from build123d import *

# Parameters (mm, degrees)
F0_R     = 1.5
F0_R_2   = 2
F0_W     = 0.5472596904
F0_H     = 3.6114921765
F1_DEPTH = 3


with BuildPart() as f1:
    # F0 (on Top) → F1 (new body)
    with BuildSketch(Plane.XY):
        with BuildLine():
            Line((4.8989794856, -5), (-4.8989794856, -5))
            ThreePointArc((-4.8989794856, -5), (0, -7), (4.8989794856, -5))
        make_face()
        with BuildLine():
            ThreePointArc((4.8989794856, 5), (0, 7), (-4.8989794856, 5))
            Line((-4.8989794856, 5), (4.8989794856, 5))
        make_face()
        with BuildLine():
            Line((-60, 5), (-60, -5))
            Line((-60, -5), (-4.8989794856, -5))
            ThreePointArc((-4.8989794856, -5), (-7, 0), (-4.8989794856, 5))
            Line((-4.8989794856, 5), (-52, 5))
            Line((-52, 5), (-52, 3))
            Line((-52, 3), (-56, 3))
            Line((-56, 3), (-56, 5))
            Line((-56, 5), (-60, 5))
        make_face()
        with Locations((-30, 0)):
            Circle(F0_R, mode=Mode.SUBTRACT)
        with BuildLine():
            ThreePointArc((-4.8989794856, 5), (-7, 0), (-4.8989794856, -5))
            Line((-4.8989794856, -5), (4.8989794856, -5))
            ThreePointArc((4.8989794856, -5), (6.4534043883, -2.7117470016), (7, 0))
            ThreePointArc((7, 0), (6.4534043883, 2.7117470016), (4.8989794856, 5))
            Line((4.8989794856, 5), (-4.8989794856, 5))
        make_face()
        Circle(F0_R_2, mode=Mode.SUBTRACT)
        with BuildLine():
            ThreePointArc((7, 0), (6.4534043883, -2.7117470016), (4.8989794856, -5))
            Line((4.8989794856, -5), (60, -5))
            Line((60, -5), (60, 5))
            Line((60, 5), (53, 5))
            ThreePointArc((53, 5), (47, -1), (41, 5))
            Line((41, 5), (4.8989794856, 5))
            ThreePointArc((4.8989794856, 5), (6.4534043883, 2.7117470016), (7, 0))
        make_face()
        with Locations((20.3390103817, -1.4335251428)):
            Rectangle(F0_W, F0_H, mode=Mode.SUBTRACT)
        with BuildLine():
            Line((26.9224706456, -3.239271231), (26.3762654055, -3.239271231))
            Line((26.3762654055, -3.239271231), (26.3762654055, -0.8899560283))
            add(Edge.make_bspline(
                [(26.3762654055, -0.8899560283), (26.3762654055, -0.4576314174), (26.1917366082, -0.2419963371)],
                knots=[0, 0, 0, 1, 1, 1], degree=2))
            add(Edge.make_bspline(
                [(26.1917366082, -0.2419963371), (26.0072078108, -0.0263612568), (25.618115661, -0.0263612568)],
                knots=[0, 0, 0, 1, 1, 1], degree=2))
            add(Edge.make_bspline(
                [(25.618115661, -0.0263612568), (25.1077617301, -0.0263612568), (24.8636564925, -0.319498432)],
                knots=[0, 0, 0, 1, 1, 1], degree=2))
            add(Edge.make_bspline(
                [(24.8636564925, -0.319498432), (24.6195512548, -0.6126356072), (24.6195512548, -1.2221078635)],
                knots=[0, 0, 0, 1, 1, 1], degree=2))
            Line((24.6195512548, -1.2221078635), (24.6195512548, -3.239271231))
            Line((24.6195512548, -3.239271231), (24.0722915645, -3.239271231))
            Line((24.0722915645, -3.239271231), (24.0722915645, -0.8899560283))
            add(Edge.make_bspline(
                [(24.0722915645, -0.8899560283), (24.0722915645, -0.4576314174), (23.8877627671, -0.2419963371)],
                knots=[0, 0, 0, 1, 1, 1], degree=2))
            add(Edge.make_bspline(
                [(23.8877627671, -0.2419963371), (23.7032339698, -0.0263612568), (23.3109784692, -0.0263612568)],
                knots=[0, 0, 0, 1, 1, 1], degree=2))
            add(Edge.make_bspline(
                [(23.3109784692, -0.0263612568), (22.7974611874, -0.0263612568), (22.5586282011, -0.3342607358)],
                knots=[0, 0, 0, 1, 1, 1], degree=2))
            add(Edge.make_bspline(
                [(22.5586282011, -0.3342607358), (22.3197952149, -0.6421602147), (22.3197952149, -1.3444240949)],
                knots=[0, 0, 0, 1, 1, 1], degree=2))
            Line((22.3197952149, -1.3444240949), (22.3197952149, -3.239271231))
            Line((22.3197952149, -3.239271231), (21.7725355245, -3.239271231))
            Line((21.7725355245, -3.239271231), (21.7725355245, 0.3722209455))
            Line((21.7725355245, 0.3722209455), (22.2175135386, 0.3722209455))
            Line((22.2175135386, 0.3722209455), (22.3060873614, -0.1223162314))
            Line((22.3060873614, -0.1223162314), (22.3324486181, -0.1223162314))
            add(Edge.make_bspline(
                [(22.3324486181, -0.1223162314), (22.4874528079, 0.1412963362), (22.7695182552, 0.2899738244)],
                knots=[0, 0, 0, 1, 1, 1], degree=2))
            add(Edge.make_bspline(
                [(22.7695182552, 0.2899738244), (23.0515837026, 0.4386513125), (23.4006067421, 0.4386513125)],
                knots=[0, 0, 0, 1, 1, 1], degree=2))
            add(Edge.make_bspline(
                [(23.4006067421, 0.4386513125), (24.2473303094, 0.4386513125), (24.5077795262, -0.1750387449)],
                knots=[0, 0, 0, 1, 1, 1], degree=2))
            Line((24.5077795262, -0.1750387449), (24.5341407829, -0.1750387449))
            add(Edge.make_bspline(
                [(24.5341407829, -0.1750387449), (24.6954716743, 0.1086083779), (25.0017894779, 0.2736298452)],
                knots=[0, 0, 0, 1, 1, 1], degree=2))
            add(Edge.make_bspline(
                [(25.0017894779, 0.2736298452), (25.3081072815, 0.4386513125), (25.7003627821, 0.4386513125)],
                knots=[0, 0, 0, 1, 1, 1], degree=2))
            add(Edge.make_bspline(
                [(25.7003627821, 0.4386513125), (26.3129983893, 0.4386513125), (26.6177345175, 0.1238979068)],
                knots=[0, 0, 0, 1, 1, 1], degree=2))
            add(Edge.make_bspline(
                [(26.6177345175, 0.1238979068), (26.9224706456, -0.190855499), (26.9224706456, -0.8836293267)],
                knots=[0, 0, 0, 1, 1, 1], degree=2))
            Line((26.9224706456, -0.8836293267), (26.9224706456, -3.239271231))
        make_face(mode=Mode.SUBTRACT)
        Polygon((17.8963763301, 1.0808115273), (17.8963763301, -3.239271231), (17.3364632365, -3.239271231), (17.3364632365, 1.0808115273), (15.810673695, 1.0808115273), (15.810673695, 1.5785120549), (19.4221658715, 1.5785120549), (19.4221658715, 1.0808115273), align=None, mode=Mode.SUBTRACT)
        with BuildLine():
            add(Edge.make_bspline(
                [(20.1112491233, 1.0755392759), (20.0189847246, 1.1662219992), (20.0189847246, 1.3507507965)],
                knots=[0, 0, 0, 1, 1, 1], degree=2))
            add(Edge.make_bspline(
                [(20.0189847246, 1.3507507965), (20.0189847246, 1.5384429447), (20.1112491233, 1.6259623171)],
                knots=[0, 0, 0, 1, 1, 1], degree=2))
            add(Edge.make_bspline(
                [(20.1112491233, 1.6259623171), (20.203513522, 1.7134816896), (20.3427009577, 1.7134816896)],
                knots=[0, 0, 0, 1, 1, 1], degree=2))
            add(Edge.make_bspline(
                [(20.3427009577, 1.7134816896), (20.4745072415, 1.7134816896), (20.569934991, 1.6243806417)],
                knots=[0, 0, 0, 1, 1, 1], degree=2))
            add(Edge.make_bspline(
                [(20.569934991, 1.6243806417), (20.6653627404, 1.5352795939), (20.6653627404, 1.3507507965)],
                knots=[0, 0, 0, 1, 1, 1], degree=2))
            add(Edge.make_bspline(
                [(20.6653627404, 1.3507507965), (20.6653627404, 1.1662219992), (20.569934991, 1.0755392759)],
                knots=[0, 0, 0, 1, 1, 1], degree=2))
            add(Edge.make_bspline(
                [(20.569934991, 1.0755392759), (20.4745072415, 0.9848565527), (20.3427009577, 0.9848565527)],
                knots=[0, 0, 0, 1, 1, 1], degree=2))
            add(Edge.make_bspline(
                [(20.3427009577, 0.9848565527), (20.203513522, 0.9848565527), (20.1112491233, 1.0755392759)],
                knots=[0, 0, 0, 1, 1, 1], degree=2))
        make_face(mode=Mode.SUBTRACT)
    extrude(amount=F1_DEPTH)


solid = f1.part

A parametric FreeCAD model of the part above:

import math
import FreeCAD as App
import Part
import Sketcher
from FreeCAD import Vector

doc = App.newDocument("Part")
params = doc.addObject("Spreadsheet::Sheet", "Params")
for row, (alias, value) in enumerate([
    ("sketch1_diameter", "3 mm"),
    ("sketch1_diameter2", "4 mm"),
    ("sketch1_radius", "7 mm"),
    ("sketch1_radius2", "6 mm"),
    ("sketch1_radius3", "7 mm"),
    ("pad1_length", "3 mm"),
], start=1):
    params.set(f"A{row}", alias)
    params.set(f"B{row}", "=" + value)
    params.setAlias(f"B{row}", alias)

body = doc.addObject("PartDesign::Body", "Body")

# Sketch on XY plane
sketch1 = body.newObject("Sketcher::SketchObject", "Sketch")
sketch1.AttachmentSupport = (doc.getObject("XY_Plane"), [""])
sketch1.MapMode = "FlatFace"
sketch1.addGeometry([
    Part.ArcOfCircle(Part.Circle(Vector(0, 0, 0), Vector(0, 0, 1), 7), math.radians(-134.415309), math.radians(-45.584691)),  # 0
    Part.LineSegment(Vector(4.898979, -5, 0), Vector(60, -5, 0)),  # 1
    Part.LineSegment(Vector(60, -5, 0), Vector(60, 5, 0)),  # 2
    Part.LineSegment(Vector(60, 5, 0), Vector(53, 5, 0)),  # 3
    Part.ArcOfCircle(Part.Circle(Vector(47, 5, 0), Vector(0, 0, 1), 6), math.radians(180), math.radians(360)),  # 4
    Part.LineSegment(Vector(41, 5, 0), Vector(4.898979, 5, 0)),  # 5
    Part.ArcOfCircle(Part.Circle(Vector(0, 0, 0), Vector(0, 0, 1), 7), math.radians(45.584691), math.radians(134.415309)),  # 6
    Part.LineSegment(Vector(-4.898979, 5, 0), Vector(-52, 5, 0)),  # 7
    Part.LineSegment(Vector(-52, 5, 0), Vector(-52, 3, 0)),  # 8
    Part.LineSegment(Vector(-52, 3, 0), Vector(-56, 3, 0)),  # 9
    Part.LineSegment(Vector(-56, 3, 0), Vector(-56, 5, 0)),  # 10
    Part.LineSegment(Vector(-56, 5, 0), Vector(-60, 5, 0)),  # 11
    Part.LineSegment(Vector(-60, 5, 0), Vector(-60, -5, 0)),  # 12
    Part.LineSegment(Vector(-60, -5, 0), Vector(-4.898979, -5, 0)),  # 13
    Part.LineSegment(Vector(20.61264, -3.239271, 0), Vector(20.065381, -3.239271, 0)),  # 14
    Part.LineSegment(Vector(20.065381, -3.239271, 0), Vector(20.065381, 0.372221, 0)),  # 15
    Part.LineSegment(Vector(20.065381, 0.372221, 0), Vector(20.61264, 0.372221, 0)),  # 16
    Part.LineSegment(Vector(20.61264, 0.372221, 0), Vector(20.61264, -3.239271, 0)),  # 17
    Part.LineSegment(Vector(26.922471, -0.883629, 0), Vector(26.922471, -3.239271, 0)),  # 18
    Part.LineSegment(Vector(26.922471, -3.239271, 0), Vector(26.376265, -3.239271, 0)),  # 19
    Part.LineSegment(Vector(26.376265, -3.239271, 0), Vector(26.376265, -0.889956, 0)),  # 20
    Part.BSplineCurve([Vector(26.376265, -0.889956, 0), Vector(26.376265, -0.457631, 0), Vector(26.191737, -0.241996, 0)], [3, 3], [0, 1], False, 2, [1, 1, 1], False),  # 21
    Part.BSplineCurve([Vector(26.191737, -0.241996, 0), Vector(26.007208, -0.026361, 0), Vector(25.107762, -0.026361, 0), Vector(24.863656, -0.319498, 0)], [3, 1, 3], [0, 1, 2.311653117], False, 2, [1, 1, 1, 1], False),  # 22
    Part.BSplineCurve([Vector(24.863656, -0.319498, 0), Vector(24.619551, -0.612636, 0), Vector(24.619551, -1.222108, 0)], [3, 3], [0, 1], False, 2, [1, 1, 1], False),  # 23
    Part.LineSegment(Vector(24.619551, -1.222108, 0), Vector(24.619551, -3.239271, 0)),  # 24
    Part.LineSegment(Vector(24.619551, -3.239271, 0), Vector(24.072292, -3.239271, 0)),  # 25
    Part.LineSegment(Vector(24.072292, -3.239271, 0), Vector(24.072292, -0.889956, 0)),  # 26
    Part.BSplineCurve([Vector(24.072292, -0.889956, 0), Vector(24.072292, -0.457631, 0), Vector(23.887763, -0.241996, 0)], [3, 3], [0, 1], False, 2, [1, 1, 1], False),  # 27
    Part.BSplineCurve([Vector(23.887763, -0.241996, 0), Vector(23.703234, -0.026361, 0), Vector(22.797461, -0.026361, 0), Vector(22.558628, -0.334261, 0)], [3, 1, 3], [0, 1, 2.309139785], False, 2, [1, 1, 1, 1], False),  # 28
    Part.BSplineCurve([Vector(22.558628, -0.334261, 0), Vector(22.319795, -0.64216, 0), Vector(22.319795, -1.344424, 0)], [3, 3], [0, 1], False, 2, [1, 1, 1], False),  # 29
    Part.LineSegment(Vector(22.319795, -1.344424, 0), Vector(22.319795, -3.239271, 0)),  # 30
    Part.LineSegment(Vector(22.319795, -3.239271, 0), Vector(21.772536, -3.239271, 0)),  # 31
    Part.LineSegment(Vector(21.772536, -3.239271, 0), Vector(21.772536, 0.372221, 0)),  # 32
    Part.LineSegment(Vector(21.772536, 0.372221, 0), Vector(22.217514, 0.372221, 0)),  # 33
    Part.LineSegment(Vector(22.217514, 0.372221, 0), Vector(22.306087, -0.122316, 0)),  # 34
    Part.LineSegment(Vector(22.306087, -0.122316, 0), Vector(22.332449, -0.122316, 0)),  # 35
    Part.BSplineCurve([Vector(22.332449, -0.122316, 0), Vector(22.487453, 0.141296, 0), Vector(22.769518, 0.289974, 0)], [3, 3], [0, 1], False, 2, [1, 1, 1], False),  # 36
    Part.BSplineCurve([Vector(22.769518, 0.289974, 0), Vector(23.051584, 0.438651, 0), Vector(24.24733, 0.438651, 0), Vector(24.50778, -0.175039, 0)], [3, 1, 3], [0, 1, 3.425981874], False, 2, [1, 1, 1, 1], False),  # 37
    Part.LineSegment(Vector(24.50778, -0.175039, 0), Vector(24.534141, -0.175039, 0)),  # 38
    Part.BSplineCurve([Vector(24.534141, -0.175039, 0), Vector(24.695472, 0.108608, 0), Vector(25.308107, 0.438651, 0), Vector(26.312998, 0.438651, 0), Vector(26.617735, 0.123898, 0)], [3, 1, 1, 3], [0, 1, 2, 3.561827957], False, 2, [1, 1, 1, 1, 1], False),  # 39
    Part.BSplineCurve([Vector(26.617735, 0.123898, 0), Vector(26.922471, -0.190855, 0), Vector(26.922471, -0.883629, 0)], [3, 3], [0, 1], False, 2, [1, 1, 1], False),  # 40
    Part.LineSegment(Vector(19.422166, 1.080812, 0), Vector(17.896376, 1.080812, 0)),  # 41
    Part.LineSegment(Vector(17.896376, 1.080812, 0), Vector(17.896376, -3.239271, 0)),  # 42
    Part.LineSegment(Vector(17.896376, -3.239271, 0), Vector(17.336463, -3.239271, 0)),  # 43
    Part.LineSegment(Vector(17.336463, -3.239271, 0), Vector(17.336463, 1.080812, 0)),  # 44
    Part.LineSegment(Vector(17.336463, 1.080812, 0), Vector(15.810674, 1.080812, 0)),  # 45
    Part.LineSegment(Vector(15.810674, 1.080812, 0), Vector(15.810674, 1.578512, 0)),  # 46
    Part.LineSegment(Vector(15.810674, 1.578512, 0), Vector(19.422166, 1.578512, 0)),  # 47
    Part.LineSegment(Vector(19.422166, 1.578512, 0), Vector(19.422166, 1.080812, 0)),  # 48
    Part.Circle(Vector(-30, 0, 0), Vector(0, 0, 1), 1.5),  # 49
    Part.Circle(Vector(0, 0, 0), Vector(0, 0, 1), 2),  # 50
    Part.BSplineCurve([Vector(20.569935, 1.075539, 0), Vector(20.474507, 0.984857, 0), Vector(20.203514, 0.984857, 0), Vector(20.111249, 1.075539, 0)], [3, 1, 3], [0, 1, 2.056], False, 2, [1, 1, 1, 1], False),  # 51
    Part.BSplineCurve([Vector(20.111249, 1.075539, 0), Vector(20.018985, 1.166222, 0), Vector(20.018985, 1.538443, 0), Vector(20.111249, 1.625962, 0)], [3, 1, 3], [0, 1, 2.017142858], False, 2, [1, 1, 1, 1], False),  # 52
    Part.BSplineCurve([Vector(20.111249, 1.625962, 0), Vector(20.203514, 1.713482, 0), Vector(20.474507, 1.713482, 0), Vector(20.569935, 1.624381, 0)], [3, 1, 3], [0, 1, 1.946969697], False, 2, [1, 1, 1, 1], False),  # 53
    Part.BSplineCurve([Vector(20.569935, 1.624381, 0), Vector(20.665363, 1.53528, 0), Vector(20.665363, 1.166222, 0), Vector(20.569935, 1.075539, 0)], [3, 1, 3], [0, 1, 1.999999999], False, 2, [1, 1, 1, 1], False),  # 54
], False)
sketch1.addConstraint([
    Sketcher.Constraint("Block", 21),
    Sketcher.Constraint("Block", 22),
    Sketcher.Constraint("Block", 23),
    Sketcher.Constraint("Block", 27),
    Sketcher.Constraint("Block", 28),
    Sketcher.Constraint("Block", 29),
    Sketcher.Constraint("Block", 36),
    Sketcher.Constraint("Block", 37),
    Sketcher.Constraint("Block", 39),
    Sketcher.Constraint("Block", 40),
    Sketcher.Constraint("Block", 51),
    Sketcher.Constraint("Block", 52),
    Sketcher.Constraint("Block", 53),
    Sketcher.Constraint("Block", 54),
    Sketcher.Constraint("Coincident", 0, 2, 1, 1),
    Sketcher.Constraint("Coincident", 1, 2, 2, 1),
    Sketcher.Constraint("Coincident", 2, 2, 3, 1),
    Sketcher.Constraint("Coincident", 3, 2, 4, 2),
    Sketcher.Constraint("Coincident", 4, 1, 5, 1),
    Sketcher.Constraint("Coincident", 5, 2, 6, 1),
    Sketcher.Constraint("Coincident", 6, 2, 7, 1),
    Sketcher.Constraint("Coincident", 7, 2, 8, 1),
    Sketcher.Constraint("Coincident", 8, 2, 9, 1),
    Sketcher.Constraint("Coincident", 9, 2, 10, 1),
    Sketcher.Constraint("Coincident", 10, 2, 11, 1),
    Sketcher.Constraint("Coincident", 11, 2, 12, 1),
    Sketcher.Constraint("Coincident", 12, 2, 13, 1),
    Sketcher.Constraint("Coincident", 13, 2, 0, 1),
    Sketcher.Constraint("Coincident", 14, 2, 15, 1),
    Sketcher.Constraint("Coincident", 15, 2, 16, 1),
    Sketcher.Constraint("Coincident", 16, 2, 17, 1),
    Sketcher.Constraint("Coincident", 17, 2, 14, 1),
    Sketcher.Constraint("Coincident", 18, 2, 19, 1),
    Sketcher.Constraint("Coincident", 19, 2, 20, 1),
    Sketcher.Constraint("Coincident", 20, 2, 21, 1),
    Sketcher.Constraint("Coincident", 23, 2, 24, 1),
    Sketcher.Constraint("Coincident", 24, 2, 25, 1),
    Sketcher.Constraint("Coincident", 25, 2, 26, 1),
    Sketcher.Constraint("Coincident", 26, 2, 27, 1),
    Sketcher.Constraint("Coincident", 29, 2, 30, 1),
    Sketcher.Constraint("Coincident", 30, 2, 31, 1),
    Sketcher.Constraint("Coincident", 31, 2, 32, 1),
    Sketcher.Constraint("Coincident", 32, 2, 33, 1),
    Sketcher.Constraint("Coincident", 33, 2, 34, 1),
    Sketcher.Constraint("Coincident", 34, 2, 35, 1),
    Sketcher.Constraint("Coincident", 35, 2, 36, 1),
    Sketcher.Constraint("Coincident", 37, 2, 38, 1),
    Sketcher.Constraint("Coincident", 38, 2, 39, 1),
    Sketcher.Constraint("Coincident", 40, 2, 18, 1),
    Sketcher.Constraint("Coincident", 41, 2, 42, 1),
    Sketcher.Constraint("Coincident", 42, 2, 43, 1),
    Sketcher.Constraint("Coincident", 43, 2, 44, 1),
    Sketcher.Constraint("Coincident", 44, 2, 45, 1),
    Sketcher.Constraint("Coincident", 45, 2, 46, 1),
    Sketcher.Constraint("Coincident", 46, 2, 47, 1),
    Sketcher.Constraint("Coincident", 47, 2, 48, 1),
    Sketcher.Constraint("Coincident", 48, 2, 41, 1),
    Sketcher.Constraint("Horizontal", 1),
    Sketcher.Constraint("Vertical", 2),
    Sketcher.Constraint("Horizontal", 3),
    Sketcher.Constraint("Horizontal", 5),
    Sketcher.Constraint("Horizontal", 7),
    Sketcher.Constraint("Vertical", 8),
    Sketcher.Constraint("Horizontal", 9),
    Sketcher.Constraint("Vertical", 10),
    Sketcher.Constraint("Horizontal", 11),
    Sketcher.Constraint("Vertical", 12),
    Sketcher.Constraint("Horizontal", 13),
    Sketcher.Constraint("Horizontal", 14),
    Sketcher.Constraint("Vertical", 15),
    Sketcher.Constraint("Horizontal", 16),
    Sketcher.Constraint("Vertical", 17),
    Sketcher.Constraint("Vertical", 18),
    Sketcher.Constraint("Horizontal", 19),
    Sketcher.Constraint("Vertical", 20),
    Sketcher.Constraint("Vertical", 24),
    Sketcher.Constraint("Horizontal", 25),
    Sketcher.Constraint("Vertical", 26),
    Sketcher.Constraint("Vertical", 30),
    Sketcher.Constraint("Horizontal", 31),
    Sketcher.Constraint("Vertical", 32),
    Sketcher.Constraint("Horizontal", 33),
    Sketcher.Constraint("Horizontal", 35),
    Sketcher.Constraint("Horizontal", 41),
    Sketcher.Constraint("Vertical", 42),
    Sketcher.Constraint("Horizontal", 43),
    Sketcher.Constraint("Vertical", 44),
    Sketcher.Constraint("Horizontal", 45),
    Sketcher.Constraint("Vertical", 46),
    Sketcher.Constraint("Horizontal", 47),
    Sketcher.Constraint("Vertical", 48),
    Sketcher.Constraint("Coincident", 0, 3, -1, 1),
    Sketcher.Constraint("Coincident", 6, 3, -1, 1),
    Sketcher.Constraint("Coincident", 50, 3, -1, 1),
    Sketcher.Constraint("PointOnObject", 49, 3, -1),
    Sketcher.Constraint("Diameter", 49, 3.0),
    Sketcher.Constraint("Diameter", 50, 4.0),
    Sketcher.Constraint("Radius", 0, 7.0),
    Sketcher.Constraint("Radius", 4, 6.0),
    Sketcher.Constraint("Radius", 6, 7.0),
    Sketcher.Constraint("DistanceX", 3, 2, 3, 1, 7.0),
    Sketcher.Constraint("DistanceX", 9, 2, 9, 1, 4.0),
    Sketcher.Constraint("DistanceX", 11, 2, 11, 1, 4.0),
    Sketcher.Constraint("DistanceY", 2, 1, 2, 2, 10.0),
    Sketcher.Constraint("DistanceY", 8, 2, 8, 1, 2.0),
    Sketcher.Constraint("DistanceY", 10, 1, 10, 2, 2.0),
    Sketcher.Constraint("DistanceY", 12, 2, 12, 1, 10.0),
    Sketcher.Constraint("DistanceX", -1, 1, 4, 3, 47.0),
    Sketcher.Constraint("DistanceY", -1, 1, 4, 3, 5.0),
    Sketcher.Constraint("DistanceX", 49, 3, -1, 1, 30.0),
    Sketcher.Constraint("DistanceY", 0, 2, -1, 1, 5.0),
    Sketcher.Constraint("DistanceY", -1, 1, 4, 1, 5.0),
    Sketcher.Constraint("DistanceY", -1, 1, 6, 2, 5.0),
    Sketcher.Constraint("DistanceX", 7, 2, -1, 1, 52.0),
    Sketcher.Constraint("DistanceY", 46, 1, 46, 2, 0.497701),
    Sketcher.Constraint("DistanceY", 48, 2, 48, 1, 0.497701),
    Sketcher.Constraint("DistanceX", 14, 2, 14, 1, 0.54726),
    Sketcher.Constraint("DistanceX", 31, 2, 31, 1, 0.54726),
    Sketcher.Constraint("DistanceX", 33, 1, 33, 2, 0.444978),
    Sketcher.Constraint("DistanceX", 35, 1, 35, 2, 0.026361),
    Sketcher.Constraint("DistanceX", 41, 2, 41, 1, 1.52579),
    Sketcher.Constraint("DistanceX", 45, 2, 45, 1, 1.52579),
    Sketcher.Constraint("DistanceY", 18, 2, 18, 1, 2.355642),
    Sketcher.Constraint("DistanceX", 0, 2, 14, 2, 15.166401),
    Sketcher.Constraint("DistanceX", 43, 2, 43, 1, 0.559913),
    Sketcher.Constraint("DistanceY", 15, 1, 15, 2, 3.611492),
    Sketcher.Constraint("DistanceY", 24, 2, 24, 1, 2.017163),
    Sketcher.Constraint("DistanceY", 30, 2, 30, 1, 1.894847),
    Sketcher.Constraint("DistanceY", 32, 1, 32, 2, 3.611492),
    Sketcher.Constraint("DistanceY", 42, 2, 42, 1, 4.320083),
    Sketcher.Constraint("DistanceY", 14, 2, -1, 1, 3.239271),
    Sketcher.Constraint("DistanceY", -1, 1, 41, 2, 1.080812),
    Sketcher.Constraint("DistanceX", 41, 2, 32, 2, 3.876159),
])
sketch1.setExpression("Constraints[95]", "Params.sketch1_diameter")
sketch1.setExpression("Constraints[96]", "Params.sketch1_diameter2")
sketch1.setExpression("Constraints[97]", "Params.sketch1_radius")
sketch1.setExpression("Constraints[98]", "Params.sketch1_radius2")
sketch1.setExpression("Constraints[99]", "Params.sketch1_radius3")
pad1 = body.newObject("PartDesign::Pad", "Pad")
pad1.Profile = sketch1
pad1.setExpression("Length", "Params.pad1_length")

doc.recompute()
